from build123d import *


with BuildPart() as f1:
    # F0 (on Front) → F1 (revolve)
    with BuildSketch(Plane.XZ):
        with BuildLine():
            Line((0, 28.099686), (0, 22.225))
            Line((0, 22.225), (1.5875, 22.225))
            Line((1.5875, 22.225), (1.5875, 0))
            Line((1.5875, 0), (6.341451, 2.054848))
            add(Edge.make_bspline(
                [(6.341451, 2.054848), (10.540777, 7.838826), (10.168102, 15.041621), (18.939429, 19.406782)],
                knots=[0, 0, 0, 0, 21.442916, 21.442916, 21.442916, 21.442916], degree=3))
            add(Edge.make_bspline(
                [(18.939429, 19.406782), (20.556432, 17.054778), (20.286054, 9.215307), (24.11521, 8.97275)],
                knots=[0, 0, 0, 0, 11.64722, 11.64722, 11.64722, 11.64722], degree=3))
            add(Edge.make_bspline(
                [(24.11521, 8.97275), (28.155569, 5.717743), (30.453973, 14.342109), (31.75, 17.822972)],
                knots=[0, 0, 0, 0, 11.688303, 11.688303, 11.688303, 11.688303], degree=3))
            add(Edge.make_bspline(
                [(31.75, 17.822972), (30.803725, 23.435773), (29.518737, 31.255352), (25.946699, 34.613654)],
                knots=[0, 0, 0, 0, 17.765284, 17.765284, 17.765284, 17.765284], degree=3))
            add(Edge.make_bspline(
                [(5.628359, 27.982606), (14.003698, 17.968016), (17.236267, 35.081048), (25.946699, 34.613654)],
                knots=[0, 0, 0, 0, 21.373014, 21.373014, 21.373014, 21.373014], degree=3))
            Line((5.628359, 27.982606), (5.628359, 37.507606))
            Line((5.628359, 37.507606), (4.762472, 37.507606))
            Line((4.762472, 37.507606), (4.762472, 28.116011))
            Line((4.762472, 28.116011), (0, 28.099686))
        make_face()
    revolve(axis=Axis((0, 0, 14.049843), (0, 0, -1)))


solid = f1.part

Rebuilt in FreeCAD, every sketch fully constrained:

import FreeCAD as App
import Part
import Sketcher
Q = App.Units.Quantity

doc = App.newDocument("Part")
body = doc.addObject("PartDesign::Body", "Body")

# Sketch on XZ plane
sketch1 = doc.addObject("Sketcher::SketchObject", "Sketch")
body.addObject(sketch1)
sketch1.AttachmentSupport = (doc.XZ_Plane, [""])
sketch1.MapMode = "FlatFace"
sketch1.addGeometry(Part.LineSegment(App.Vector(0, 28.099686, 0), App.Vector(0, 22.225, 0)), False)
sketch1.addGeometry(Part.LineSegment(App.Vector(0, 22.225, 0), App.Vector(1.5875, 22.225, 0)), False)
sketch1.addGeometry(Part.LineSegment(App.Vector(1.5875, 22.225, 0), App.Vector(1.5875, 0, 0)), False)
sketch1.addGeometry(Part.LineSegment(App.Vector(1.5875, 0, 0), App.Vector(6.341451, 2.054848, 0)), False)
sketch1.addGeometry(Part.BSplineCurve([App.Vector(6.341451, 2.054848, 0), App.Vector(10.540777, 7.838826, 0), App.Vector(10.168102, 15.041621, 0), App.Vector(18.939429, 19.406782, 0)], [4, 4], [0, 21.442916], False, 3, [1, 1, 1, 1], False), False)
sketch1.addGeometry(Part.BSplineCurve([App.Vector(18.939429, 19.406782, 0), App.Vector(20.556432, 17.054778, 0), App.Vector(20.286054, 9.215307, 0), App.Vector(24.11521, 8.97275, 0)], [4, 4], [0, 11.64722], False, 3, [1, 1, 1, 1], False), False)
sketch1.addGeometry(Part.BSplineCurve([App.Vector(24.11521, 8.97275, 0), App.Vector(28.155569, 5.717743, 0), App.Vector(30.453973, 14.342109, 0), App.Vector(31.75, 17.822972, 0)], [4, 4], [0, 11.688303], False, 3, [1, 1, 1, 1], False), False)
sketch1.addGeometry(Part.BSplineCurve([App.Vector(31.75, 17.822972, 0), App.Vector(30.803725, 23.435773, 0), App.Vector(29.518737, 31.255352, 0), App.Vector(25.946699, 34.613654, 0)], [4, 4], [0, 17.765284], False, 3, [1, 1, 1, 1], False), False)
sketch1.addGeometry(Part.BSplineCurve([App.Vector(5.628359, 27.982606, 0), App.Vector(14.003698, 17.968016, 0), App.Vector(17.236267, 35.081048, 0), App.Vector(25.946699, 34.613654, 0)], [4, 4], [0, 21.373014], False, 3, [1, 1, 1, 1], False), False)
sketch1.addGeometry(Part.LineSegment(App.Vector(5.628359, 27.982606, 0), App.Vector(5.628359, 37.507606, 0)), False)
sketch1.addGeometry(Part.LineSegment(App.Vector(5.628359, 37.507606, 0), App.Vector(4.762472, 37.507606, 0)), False)
sketch1.addGeometry(Part.LineSegment(App.Vector(4.762472, 37.507606, 0), App.Vector(4.762472, 28.116011, 0)), False)
sketch1.addGeometry(Part.LineSegment(App.Vector(4.762472, 28.116011, 0), App.Vector(0, 28.099686, 0)), False)
sketch1.addConstraint(Sketcher.Constraint("Block", 4))
sketch1.addConstraint(Sketcher.Constraint("Block", 5))
sketch1.addConstraint(Sketcher.Constraint("Block", 6))
sketch1.addConstraint(Sketcher.Constraint("Block", 7))
sketch1.addConstraint(Sketcher.Constraint("Block", 8))
sketch1.addConstraint(Sketcher.Constraint("Coincident", 0, 2, 1, 1))
sketch1.addConstraint(Sketcher.Constraint("Coincident", 1, 2, 2, 1))
sketch1.addConstraint(Sketcher.Constraint("Coincident", 2, 2, 3, 1))
sketch1.addConstraint(Sketcher.Constraint("Coincident", 3, 2, 4, 1))
sketch1.addConstraint(Sketcher.Constraint("Coincident", 8, 1, 9, 1))
sketch1.addConstraint(Sketcher.Constraint("Coincident", 9, 2, 10, 1))
sketch1.addConstraint(Sketcher.Constraint("Coincident", 10, 2, 11, 1))
sketch1.addConstraint(Sketcher.Constraint("Coincident", 11, 2, 12, 1))
sketch1.addConstraint(Sketcher.Constraint("Coincident", 12, 2, 0, 1))
sketch1.addConstraint(Sketcher.Constraint("Vertical", 0))
sketch1.addConstraint(Sketcher.Constraint("Horizontal", 1))
sketch1.addConstraint(Sketcher.Constraint("Vertical", 2))
sketch1.addConstraint(Sketcher.Constraint("Vertical", 9))
sketch1.addConstraint(Sketcher.Constraint("Horizontal", 10))
sketch1.addConstraint(Sketcher.Constraint("Vertical", 11))
sketch1.addConstraint(Sketcher.Constraint("PointOnObject", 0, 2, -2))
sketch1.addConstraint(Sketcher.Constraint("PointOnObject", 2, 2, -1))
sketch1.addConstraint(Sketcher.Constraint("DistanceX", 1, 1, 1, 2, Q("0.0625 in")))
sketch1.addConstraint(Sketcher.Constraint("DistanceY", 2, 2, 2, 1, Q("0.875 in")))
sketch1.addConstraint(Sketcher.Constraint("DistanceY", 9, 1, 9, 2, Q("0.375 in")))
sketch1.addConstraint(Sketcher.Constraint("Distance", 12, Q("0.1875 in")))
sketch1.addConstraint(Sketcher.Constraint("DistanceX", 10, 2, 10, 1, Q("0.865887 mm")))
sketch1.addConstraint(Sketcher.Constraint("DistanceY", 0, 2, 0, 1, Q("5.874686 mm")))
revolution = doc.addObject("PartDesign::Revolution", "Revolution")
body.addObject(revolution)
revolution.Profile = sketch1
revolution.ReferenceAxis = (sketch1, ["V_Axis"])
revolution.Angle = 360

doc.recompute()
